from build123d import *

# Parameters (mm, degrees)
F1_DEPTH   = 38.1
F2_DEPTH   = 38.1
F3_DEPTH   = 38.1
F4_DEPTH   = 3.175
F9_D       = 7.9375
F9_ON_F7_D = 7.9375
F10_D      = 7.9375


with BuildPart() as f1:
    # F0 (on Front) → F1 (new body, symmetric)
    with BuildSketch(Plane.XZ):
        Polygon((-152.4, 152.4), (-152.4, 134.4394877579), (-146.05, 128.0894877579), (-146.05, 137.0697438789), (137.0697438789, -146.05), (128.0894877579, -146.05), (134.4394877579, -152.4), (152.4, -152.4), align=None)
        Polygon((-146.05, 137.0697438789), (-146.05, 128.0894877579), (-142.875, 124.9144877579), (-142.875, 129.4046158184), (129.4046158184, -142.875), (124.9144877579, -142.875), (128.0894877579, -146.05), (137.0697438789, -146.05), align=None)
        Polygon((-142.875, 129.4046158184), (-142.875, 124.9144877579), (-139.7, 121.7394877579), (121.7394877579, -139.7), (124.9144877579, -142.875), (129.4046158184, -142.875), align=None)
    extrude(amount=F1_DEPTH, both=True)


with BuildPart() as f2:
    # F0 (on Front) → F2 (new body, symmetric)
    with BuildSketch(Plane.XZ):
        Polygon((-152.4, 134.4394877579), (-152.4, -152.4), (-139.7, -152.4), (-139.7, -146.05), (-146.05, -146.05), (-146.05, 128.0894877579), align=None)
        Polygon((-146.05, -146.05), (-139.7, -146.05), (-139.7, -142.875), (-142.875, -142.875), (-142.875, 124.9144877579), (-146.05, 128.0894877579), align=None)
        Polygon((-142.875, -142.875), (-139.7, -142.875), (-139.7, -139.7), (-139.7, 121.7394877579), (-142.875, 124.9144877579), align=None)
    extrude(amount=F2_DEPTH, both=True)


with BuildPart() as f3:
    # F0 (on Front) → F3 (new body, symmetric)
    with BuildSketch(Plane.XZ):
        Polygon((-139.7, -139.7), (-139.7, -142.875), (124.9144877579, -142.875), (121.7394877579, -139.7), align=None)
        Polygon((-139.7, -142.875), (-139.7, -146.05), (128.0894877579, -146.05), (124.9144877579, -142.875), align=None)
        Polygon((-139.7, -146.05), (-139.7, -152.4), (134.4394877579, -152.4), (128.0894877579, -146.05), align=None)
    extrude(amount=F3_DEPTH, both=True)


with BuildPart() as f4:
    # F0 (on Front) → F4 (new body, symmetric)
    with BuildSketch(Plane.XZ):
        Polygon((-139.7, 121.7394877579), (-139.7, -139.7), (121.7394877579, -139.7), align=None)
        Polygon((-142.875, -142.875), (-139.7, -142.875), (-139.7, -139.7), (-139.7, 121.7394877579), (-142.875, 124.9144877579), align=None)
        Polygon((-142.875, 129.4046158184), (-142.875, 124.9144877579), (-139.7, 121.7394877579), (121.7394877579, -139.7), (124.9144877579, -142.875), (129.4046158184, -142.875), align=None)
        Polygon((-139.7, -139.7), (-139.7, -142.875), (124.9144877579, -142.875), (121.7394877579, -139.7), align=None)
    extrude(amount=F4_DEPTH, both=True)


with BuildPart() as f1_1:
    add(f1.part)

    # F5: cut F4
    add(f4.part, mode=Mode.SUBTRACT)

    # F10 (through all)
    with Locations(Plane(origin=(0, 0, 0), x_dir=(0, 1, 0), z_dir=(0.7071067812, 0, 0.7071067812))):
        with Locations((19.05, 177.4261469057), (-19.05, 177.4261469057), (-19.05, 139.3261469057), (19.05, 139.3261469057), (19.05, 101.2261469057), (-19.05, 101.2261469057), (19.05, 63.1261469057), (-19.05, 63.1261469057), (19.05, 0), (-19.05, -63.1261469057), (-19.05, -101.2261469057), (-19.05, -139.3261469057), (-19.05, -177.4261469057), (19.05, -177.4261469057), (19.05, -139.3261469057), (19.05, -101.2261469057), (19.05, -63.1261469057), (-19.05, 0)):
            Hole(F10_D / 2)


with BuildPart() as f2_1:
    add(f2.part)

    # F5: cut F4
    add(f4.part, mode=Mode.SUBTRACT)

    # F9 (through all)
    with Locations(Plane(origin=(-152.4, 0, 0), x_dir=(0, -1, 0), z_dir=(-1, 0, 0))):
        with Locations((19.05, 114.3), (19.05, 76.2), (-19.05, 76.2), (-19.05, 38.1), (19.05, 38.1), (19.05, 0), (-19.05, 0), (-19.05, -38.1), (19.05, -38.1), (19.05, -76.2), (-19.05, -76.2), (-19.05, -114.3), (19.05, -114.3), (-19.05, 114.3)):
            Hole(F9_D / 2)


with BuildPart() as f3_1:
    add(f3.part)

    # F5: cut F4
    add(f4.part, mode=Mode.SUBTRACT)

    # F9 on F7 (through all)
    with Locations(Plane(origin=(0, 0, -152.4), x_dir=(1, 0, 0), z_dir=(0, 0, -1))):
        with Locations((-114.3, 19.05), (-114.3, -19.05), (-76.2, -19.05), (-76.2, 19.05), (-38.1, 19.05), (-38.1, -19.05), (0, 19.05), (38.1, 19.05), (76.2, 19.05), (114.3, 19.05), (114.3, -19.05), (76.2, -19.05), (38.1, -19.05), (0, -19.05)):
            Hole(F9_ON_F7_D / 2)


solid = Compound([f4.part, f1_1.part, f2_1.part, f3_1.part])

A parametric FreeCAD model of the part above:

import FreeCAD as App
import Part
import Sketcher

V = App.Vector
Q = App.Units.Quantity


def add_polygon(sketch, points):
    """Adds a closed chain of lines whose ends are joined by coincident constraints."""
    first, n = sketch.GeometryCount, len(points)
    for a, b in zip(points, points[1:] + points[:1]):
        sketch.addGeometry(Part.LineSegment(App.Vector(*a, 0), App.Vector(*b, 0)), False)
    for i in range(n):
        sketch.addConstraint(Sketcher.Constraint("Coincident", first + i, 2, first + (i + 1) % n, 1))

doc = App.newDocument("Part")
body = doc.addObject("PartDesign::Body", "Body")

# Sketch on XZ plane
sketch1 = doc.addObject("Sketcher::SketchObject", "Sketch")
body.addObject(sketch1)
sketch1.AttachmentSupport = (doc.XZ_Plane, [""])
sketch1.MapMode = "FlatFace"
add_polygon(sketch1, [(-152, 152), (-152, 134), (134, -152), (152, -152)])  # lines 0-3
sketch1.addConstraint([
    Sketcher.Constraint("Vertical", 0),
    Sketcher.Constraint("Horizontal", 2),
    Sketcher.Constraint("Symmetric", 2, 2, 3, 2, -1, 1),
    Sketcher.Constraint("Parallel", 1, 3),
    Sketcher.Constraint("Equal", 2, 0),
    Sketcher.Constraint("DistanceX", 0, 2, -1, 1, Q("6 in")),
    Sketcher.Constraint("DistanceX", 2, 1, 2, 2, 17.960512),
])
pad1 = doc.addObject("PartDesign::Pad", "Pad")
body.addObject(pad1)
pad1.Profile = sketch1
pad1.Length = Q("3 in")
pad1.Midplane = True
body2 = doc.addObject("PartDesign::Body", "Body001")

# Sketch on XZ plane
sketch2 = doc.addObject("Sketcher::SketchObject", "Sketch001")
body2.addObject(sketch2)
sketch2.AttachmentSupport = (doc.getObject("XZ_Plane001"), [""])
sketch2.MapMode = "FlatFace"
add_polygon(sketch2, [(-152, 134), (-152, -152), (-140, -152), (-140, 122)])  # lines 0-3
sketch2.addConstraint([
    Sketcher.Constraint("Vertical", 0),
    Sketcher.Constraint("Horizontal", 1),
    Sketcher.Constraint("Vertical", 2),
    Sketcher.Constraint("DistanceX", 1, 1, 1, 2, Q("0.5 in")),
    Sketcher.Constraint("DistanceX", 0, 2, -1, 1, Q("6 in")),
    Sketcher.Constraint("DistanceY", 0, 2, -1, 1, Q("6 in")),
    Sketcher.Constraint("Angle", 3, Q("135 deg")),
    Sketcher.Constraint("DistanceY", 0, 2, 0, 1, 286.839488),
])
pad2 = doc.addObject("PartDesign::Pad", "Pad001")
body2.addObject(pad2)
pad2.Profile = sketch2
pad2.Length = Q("3 in")
pad2.Midplane = True
body3 = doc.addObject("PartDesign::Body", "Body002")

# Sketch on XZ plane
sketch3 = doc.addObject("Sketcher::SketchObject", "Sketch002")
body3.addObject(sketch3)
sketch3.AttachmentSupport = (doc.getObject("XZ_Plane002"), [""])
sketch3.MapMode = "FlatFace"
add_polygon(sketch3, [(-140, -140), (-140, -152), (134, -152), (122, -140)])  # lines 0-3
sketch3.addConstraint([
    Sketcher.Constraint("Vertical", 0),
    Sketcher.Constraint("Horizontal", 1),
    Sketcher.Constraint("Horizontal", 3),
    Sketcher.Constraint("DistanceY", 0, 2, 0, 1, Q("0.5 in")),
    Sketcher.Constraint("DistanceY", 0, 2, -1, 1, Q("6 in")),
    Sketcher.Constraint("Angle", 2, Q("135 deg")),
    Sketcher.Constraint("DistanceX", 0, 2, -1, 1, Q("5.5 in")),
    Sketcher.Constraint("DistanceX", 1, 1, 1, 2, 274.139488),
])
pad3 = doc.addObject("PartDesign::Pad", "Pad002")
body3.addObject(pad3)
pad3.Profile = sketch3
pad3.Length = Q("3 in")
pad3.Midplane = True
body4 = doc.addObject("PartDesign::Body", "Body003")

# Sketch on XZ plane
sketch4 = doc.addObject("Sketcher::SketchObject", "Sketch003")
body4.addObject(sketch4)
sketch4.AttachmentSupport = (doc.getObject("XZ_Plane003"), [""])
sketch4.MapMode = "FlatFace"
add_polygon(sketch4, [(129, -143), (-143, 129), (-143, -143)])  # lines 0-2
sketch4.addConstraint([
    Sketcher.Constraint("Vertical", 1),
    Sketcher.Constraint("Horizontal", 2),
    Sketcher.Constraint("Equal", 2, 1),
    Sketcher.Constraint("DistanceX", 0, 2, -1, 1, Q("5.625 in")),
    Sketcher.Constraint("DistanceY", 1, 2, -1, 1, Q("5.625 in")),
    Sketcher.Constraint("DistanceX", 2, 1, 2, 2, 272.279616),
])
pad4 = doc.addObject("PartDesign::Pad", "Pad003")
body4.addObject(pad4)
pad4.Profile = sketch4
pad4.Length = Q("0.25 in")
pad4.Midplane = True
doc.recompute()

body5 = doc.addObject("PartDesign::Body", "Body004")
body5.BaseFeature = body4
boolean = doc.addObject("PartDesign::Boolean", "Boolean")
body.addObject(boolean)
boolean.Type = "Cut"
boolean.addObjects([body5])
doc.recompute()

# Sketch on an angled plane
sketch5 = doc.addObject("Sketcher::SketchObject", "Sketch004")
body.addObject(sketch5)
sketch5.Placement = App.Placement(V(0, 0, 0), App.Rotation(V(0, 1, 0), V(-0.707106781, 0, 0.707106781), V(0.707106781, 0, 0.707106781), "ZXY"))
sketch5.addGeometry([
    Part.Circle(V(19.1, 177.4, 0), V(0, 0, 1), 4),  # 0
    Part.Circle(V(-19.1, 177.4, 0), V(0, 0, 1), 4),  # 1
    Part.Circle(V(-19.1, 139.3, 0), V(0, 0, 1), 4),  # 2
    Part.Circle(V(19.1, 139.3, 0), V(0, 0, 1), 4),  # 3
    Part.Circle(V(19.1, 101.2, 0), V(0, 0, 1), 4),  # 4
    Part.Circle(V(-19.1, 101.2, 0), V(0, 0, 1), 4),  # 5
    Part.Circle(V(19.1, 63.1, 0), V(0, 0, 1), 4),  # 6
    Part.Circle(V(-19.1, 63.1, 0), V(0, 0, 1), 4),  # 7
    Part.Circle(V(19.1, 0, 0), V(0, 0, 1), 4),  # 8
    Part.Circle(V(-19.1, -63.1, 0), V(0, 0, 1), 4),  # 9
    Part.Circle(V(-19.1, -101.2, 0), V(0, 0, 1), 4),  # 10
    Part.Circle(V(-19.1, -139.3, 0), V(0, 0, 1), 4),  # 11
    Part.Circle(V(-19.1, -177.4, 0), V(0, 0, 1), 4),  # 12
    Part.Circle(V(19.1, -177.4, 0), V(0, 0, 1), 4),  # 13
    Part.Circle(V(19.1, -139.3, 0), V(0, 0, 1), 4),  # 14
    Part.Circle(V(19.1, -101.2, 0), V(0, 0, 1), 4),  # 15
    Part.Circle(V(19.1, -63.1, 0), V(0, 0, 1), 4),  # 16
    Part.Circle(V(-19.1, 0, 0), V(0, 0, 1), 4),  # 17
], False)
sketch5.addConstraint([
    Sketcher.Constraint("Equal", 0, 1),
    Sketcher.Constraint("Equal", 1, 2),
    Sketcher.Constraint("Equal", 2, 3),
    Sketcher.Constraint("Equal", 3, 4),
    Sketcher.Constraint("Equal", 4, 5),
    Sketcher.Constraint("Equal", 5, 6),
    Sketcher.Constraint("Equal", 6, 7),
    Sketcher.Constraint("Equal", 7, 8),
    Sketcher.Constraint("Equal", 8, 9),
    Sketcher.Constraint("Equal", 9, 10),
    Sketcher.Constraint("Equal", 10, 11),
    Sketcher.Constraint("Equal", 11, 12),
    Sketcher.Constraint("Equal", 12, 13),
    Sketcher.Constraint("Equal", 13, 14),
    Sketcher.Constraint("Equal", 14, 15),
    Sketcher.Constraint("Equal", 15, 16),
    Sketcher.Constraint("Equal", 16, 17),
    Sketcher.Constraint("Symmetric", 6, 3, 9, 3, -1, 1),
    Sketcher.Constraint("Symmetric", 4, 3, 10, 3, -1, 1),
    Sketcher.Constraint("Symmetric", 3, 3, 11, 3, -1, 1),
    Sketcher.Constraint("Symmetric", 0, 3, 12, 3, -1, 1),
    Sketcher.Constraint("Symmetric", 1, 3, 13, 3, -1, 1),
    Sketcher.Constraint("Symmetric", 2, 3, 14, 3, -1, 1),
    Sketcher.Constraint("Symmetric", 5, 3, 15, 3, -1, 1),
    Sketcher.Constraint("Symmetric", 7, 3, 16, 3, -1, 1),
    Sketcher.Constraint("Symmetric", 8, 3, 17, 3, -1, 1),
    Sketcher.Constraint("Symmetric", 0, 3, 1, 3, -2),
    Sketcher.Constraint("Symmetric", 2, 3, 3, 3, -2),
    Sketcher.Constraint("Symmetric", 4, 3, 5, 3, -2),
    Sketcher.Constraint("Symmetric", 6, 3, 7, 3, -2),
    Sketcher.Constraint("PointOnObject", 8, 3, -1),
    Sketcher.Constraint("Vertical", 1, 3, 2, 3),
    Sketcher.Constraint("Vertical", 3, 3, 4, 3),
    Sketcher.Constraint("Vertical", 4, 3, 6, 3),
    Sketcher.Constraint("Vertical", 6, 3, 8, 3),
    Sketcher.Constraint("Diameter", 0, Q("0.3125 in")),
    Sketcher.Constraint("DistanceY", 4, 3, 0, 3, Q("3 in")),
    Sketcher.Constraint("DistanceY", 6, 3, 3, 3, Q("3 in")),
    Sketcher.Constraint("DistanceX", 1, 3, 0, 3, Q("1.5 in")),
    Sketcher.Constraint("DistanceY", 2, 3, 1, 3, Q("1.5 in")),
    Sketcher.Constraint("DistanceY", -1, 1, 0, 3, 177.426147),
])
doc.recompute()
hole = doc.addObject("PartDesign::Hole", "Hole")
body.addObject(hole)
hole.Profile = sketch5
hole.ThreadType = "None"
hole.Diameter = Q("0.3125 in")
hole.DepthType = "ThroughAll"
doc.recompute()

body6 = doc.addObject("PartDesign::Body", "Body005")
body6.BaseFeature = body4
boolean2 = doc.addObject("PartDesign::Boolean", "Boolean001")
body2.addObject(boolean2)
boolean2.Type = "Cut"
boolean2.addObjects([body6])
doc.recompute()

# Sketch on YZ plane
sketch6 = doc.addObject("Sketcher::SketchObject", "Sketch005")
body2.addObject(sketch6)
sketch6.AttachmentSupport = (doc.getObject("YZ_Plane001"), [""])
sketch6.MapMode = "FlatFace"
sketch6.AttachmentOffset = App.Placement(V(0, 0, -6 * 25.4), App.Rotation())
sketch6.addGeometry([
    Part.Circle(V(-19.1, 114.3, 0), V(0, 0, 1), 4),  # 0
    Part.Circle(V(-19.1, 76.2, 0), V(0, 0, 1), 4),  # 1
    Part.Circle(V(19.1, 76.2, 0), V(0, 0, 1), 4),  # 2
    Part.Circle(V(19.1, 38.1, 0), V(0, 0, 1), 4),  # 3
    Part.Circle(V(-19.1, 38.1, 0), V(0, 0, 1), 4),  # 4
    Part.Circle(V(-19.1, 0, 0), V(0, 0, 1), 4),  # 5
    Part.Circle(V(19.1, 0, 0), V(0, 0, 1), 4),  # 6
    Part.Circle(V(19.1, -38.1, 0), V(0, 0, 1), 4),  # 7
    Part.Circle(V(-19.1, -38.1, 0), V(0, 0, 1), 4),  # 8
    Part.Circle(V(-19.1, -76.2, 0), V(0, 0, 1), 4),  # 9
    Part.Circle(V(19.1, -76.2, 0), V(0, 0, 1), 4),  # 10
    Part.Circle(V(19.1, -114.3, 0), V(0, 0, 1), 4),  # 11
    Part.Circle(V(-19.1, -114.3, 0), V(0, 0, 1), 4),  # 12
    Part.Circle(V(19.1, 114.3, 0), V(0, 0, 1), 4),  # 13
], False)
sketch6.addConstraint([
    Sketcher.Constraint("Equal", 0, 1),
    Sketcher.Constraint("Equal", 1, 2),
    Sketcher.Constraint("Equal", 2, 3),
    Sketcher.Constraint("Equal", 3, 4),
    Sketcher.Constraint("Equal", 4, 5),
    Sketcher.Constraint("Equal", 5, 6),
    Sketcher.Constraint("Equal", 6, 7),
    Sketcher.Constraint("Equal", 7, 8),
    Sketcher.Constraint("Equal", 8, 9),
    Sketcher.Constraint("Equal", 9, 10),
    Sketcher.Constraint("Equal", 10, 11),
    Sketcher.Constraint("Equal", 11, 12),
    Sketcher.Constraint("Equal", 12, 13),
    Sketcher.Constraint("Symmetric", 5, 3, 6, 3, -1, 1),
    Sketcher.Constraint("Symmetric", 4, 3, 7, 3, -1, 1),
    Sketcher.Constraint("Symmetric", 3, 3, 8, 3, -1, 1),
    Sketcher.Constraint("Symmetric", 2, 3, 9, 3, -1, 1),
    Sketcher.Constraint("Symmetric", 1, 3, 10, 3, -1, 1),
    Sketcher.Constraint("Symmetric", 0, 3, 11, 3, -1, 1),
    Sketcher.Constraint("Symmetric", 12, 3, 13, 3, -1, 1),
    Sketcher.Constraint("Symmetric", 1, 3, 2, 3, -2),
    Sketcher.Constraint("Symmetric", 3, 3, 4, 3, -2),
    Sketcher.Constraint("Symmetric", 11, 3, 12, 3, -2),
    Sketcher.Constraint("PointOnObject", 5, 3, -1),
    Sketcher.Constraint("Vertical", 0, 3, 1, 3),
    Sketcher.Constraint("Vertical", 2, 3, 3, 3),
    Sketcher.Constraint("Vertical", 4, 3, 5, 3),
    Sketcher.Constraint("Diameter", 0, Q("0.3125 in")),
    Sketcher.Constraint("DistanceY", -1, 1, 1, 3, Q("3 in")),
    Sketcher.Constraint("DistanceY", 3, 3, 0, 3, Q("3 in")),
    Sketcher.Constraint("DistanceY", 7, 3, 3, 3, Q("3 in")),
    Sketcher.Constraint("DistanceX", 1, 3, 2, 3, Q("1.5 in")),
])
doc.recompute()
hole2 = doc.addObject("PartDesign::Hole", "Hole001")
body2.addObject(hole2)
hole2.Profile = sketch6
hole2.ThreadType = "None"
hole2.Diameter = Q("0.3125 in")
hole2.DepthType = "ThroughAll"
hole2.Reversed = True
doc.recompute()

body7 = doc.addObject("PartDesign::Body", "Body006")
body7.BaseFeature = body4
boolean3 = doc.addObject("PartDesign::Boolean", "Boolean002")
body3.addObject(boolean3)
boolean3.Type = "Cut"
boolean3.addObjects([body7])
doc.recompute()

# Sketch on XY plane
sketch7 = doc.addObject("Sketcher::SketchObject", "Sketch006")
body3.addObject(sketch7)
sketch7.AttachmentSupport = (doc.getObject("XY_Plane002"), [""])
sketch7.MapMode = "FlatFace"
sketch7.AttachmentOffset = App.Placement(V(0, 0, -6 * 25.4), App.Rotation())
sketch7.addGeometry([
    Part.Circle(V(-114.3, -19.1, 0), V(0, 0, 1), 4),  # 0
    Part.Circle(V(-114.3, 19.1, 0), V(0, 0, 1), 4),  # 1
    Part.Circle(V(-76.2, 19.1, 0), V(0, 0, 1), 4),  # 2
    Part.Circle(V(-76.2, -19.1, 0), V(0, 0, 1), 4),  # 3
    Part.Circle(V(-38.1, -19.1, 0), V(0, 0, 1), 4),  # 4
    Part.Circle(V(-38.1, 19.1, 0), V(0, 0, 1), 4),  # 5
    Part.Circle(V(0, -19.1, 0), V(0, 0, 1), 4),  # 6
    Part.Circle(V(38.1, -19.1, 0), V(0, 0, 1), 4),  # 7
    Part.Circle(V(76.2, -19.1, 0), V(0, 0, 1), 4),  # 8
    Part.Circle(V(114.3, -19.1, 0), V(0, 0, 1), 4),  # 9
    Part.Circle(V(114.3, 19.1, 0), V(0, 0, 1), 4),  # 10
    Part.Circle(V(76.2, 19.1, 0), V(0, 0, 1), 4),  # 11
    Part.Circle(V(38.1, 19.1, 0), V(0, 0, 1), 4),  # 12
    Part.Circle(V(0, 19.1, 0), V(0, 0, 1), 4),  # 13
], False)
sketch7.addConstraint([
    Sketcher.Constraint("Equal", 0, 1),
    Sketcher.Constraint("Equal", 1, 2),
    Sketcher.Constraint("Equal", 2, 3),
    Sketcher.Constraint("Equal", 3, 4),
    Sketcher.Constraint("Equal", 4, 5),
    Sketcher.Constraint("Equal", 5, 6),
    Sketcher.Constraint("Equal", 6, 7),
    Sketcher.Constraint("Equal", 7, 8),
    Sketcher.Constraint("Equal", 8, 9),
    Sketcher.Constraint("Equal", 9, 10),
    Sketcher.Constraint("Equal", 10, 11),
    Sketcher.Constraint("Equal", 11, 12),
    Sketcher.Constraint("Equal", 12, 13),
    Sketcher.Constraint("Symmetric", 5, 3, 7, 3, -1, 1),
    Sketcher.Constraint("Symmetric", 2, 3, 8, 3, -1, 1),
    Sketcher.Constraint("Symmetric", 1, 3, 9, 3, -1, 1),
    Sketcher.Constraint("Symmetric", 0, 3, 10, 3, -1, 1),
    Sketcher.Constraint("Symmetric", 3, 3, 11, 3, -1, 1),
    Sketcher.Constraint("Symmetric", 4, 3, 12, 3, -1, 1),
    Sketcher.Constraint("Symmetric", 6, 3, 13, 3, -1, 1),
    Sketcher.Constraint("Symmetric", 4, 3, 7, 3, -2),
    Sketcher.Constraint("Symmetric", 3, 3, 8, 3, -2),
    Sketcher.Constraint("Symmetric", 0, 3, 9, 3, -2),
    Sketcher.Constraint("PointOnObject", 6, 3, -2),
    Sketcher.Constraint("Horizontal", 1, 3, 2, 3),
    Sketcher.Constraint("Horizontal", 3, 3, 4, 3),
    Sketcher.Constraint("Horizontal", 4, 3, 6, 3),
    Sketcher.Constraint("Diameter", 0, Q("0.3125 in")),
    Sketcher.Constraint("DistanceX", 2, 3, -1, 1, Q("3 in")),
    Sketcher.Constraint("DistanceX", 0, 3, 4, 3, Q("3 in")),
    Sketcher.Constraint("DistanceX", 4, 3, 7, 3, Q("3 in")),
    Sketcher.Constraint("DistanceY", 0, 3, 1, 3, Q("1.5 in")),
])
doc.recompute()
hole3 = doc.addObject("PartDesign::Hole", "Hole002")
body3.addObject(hole3)
hole3.Profile = sketch7
hole3.ThreadType = "None"
hole3.Diameter = Q("0.3125 in")
hole3.DepthType = "ThroughAll"
hole3.Reversed = True

doc.recompute()
